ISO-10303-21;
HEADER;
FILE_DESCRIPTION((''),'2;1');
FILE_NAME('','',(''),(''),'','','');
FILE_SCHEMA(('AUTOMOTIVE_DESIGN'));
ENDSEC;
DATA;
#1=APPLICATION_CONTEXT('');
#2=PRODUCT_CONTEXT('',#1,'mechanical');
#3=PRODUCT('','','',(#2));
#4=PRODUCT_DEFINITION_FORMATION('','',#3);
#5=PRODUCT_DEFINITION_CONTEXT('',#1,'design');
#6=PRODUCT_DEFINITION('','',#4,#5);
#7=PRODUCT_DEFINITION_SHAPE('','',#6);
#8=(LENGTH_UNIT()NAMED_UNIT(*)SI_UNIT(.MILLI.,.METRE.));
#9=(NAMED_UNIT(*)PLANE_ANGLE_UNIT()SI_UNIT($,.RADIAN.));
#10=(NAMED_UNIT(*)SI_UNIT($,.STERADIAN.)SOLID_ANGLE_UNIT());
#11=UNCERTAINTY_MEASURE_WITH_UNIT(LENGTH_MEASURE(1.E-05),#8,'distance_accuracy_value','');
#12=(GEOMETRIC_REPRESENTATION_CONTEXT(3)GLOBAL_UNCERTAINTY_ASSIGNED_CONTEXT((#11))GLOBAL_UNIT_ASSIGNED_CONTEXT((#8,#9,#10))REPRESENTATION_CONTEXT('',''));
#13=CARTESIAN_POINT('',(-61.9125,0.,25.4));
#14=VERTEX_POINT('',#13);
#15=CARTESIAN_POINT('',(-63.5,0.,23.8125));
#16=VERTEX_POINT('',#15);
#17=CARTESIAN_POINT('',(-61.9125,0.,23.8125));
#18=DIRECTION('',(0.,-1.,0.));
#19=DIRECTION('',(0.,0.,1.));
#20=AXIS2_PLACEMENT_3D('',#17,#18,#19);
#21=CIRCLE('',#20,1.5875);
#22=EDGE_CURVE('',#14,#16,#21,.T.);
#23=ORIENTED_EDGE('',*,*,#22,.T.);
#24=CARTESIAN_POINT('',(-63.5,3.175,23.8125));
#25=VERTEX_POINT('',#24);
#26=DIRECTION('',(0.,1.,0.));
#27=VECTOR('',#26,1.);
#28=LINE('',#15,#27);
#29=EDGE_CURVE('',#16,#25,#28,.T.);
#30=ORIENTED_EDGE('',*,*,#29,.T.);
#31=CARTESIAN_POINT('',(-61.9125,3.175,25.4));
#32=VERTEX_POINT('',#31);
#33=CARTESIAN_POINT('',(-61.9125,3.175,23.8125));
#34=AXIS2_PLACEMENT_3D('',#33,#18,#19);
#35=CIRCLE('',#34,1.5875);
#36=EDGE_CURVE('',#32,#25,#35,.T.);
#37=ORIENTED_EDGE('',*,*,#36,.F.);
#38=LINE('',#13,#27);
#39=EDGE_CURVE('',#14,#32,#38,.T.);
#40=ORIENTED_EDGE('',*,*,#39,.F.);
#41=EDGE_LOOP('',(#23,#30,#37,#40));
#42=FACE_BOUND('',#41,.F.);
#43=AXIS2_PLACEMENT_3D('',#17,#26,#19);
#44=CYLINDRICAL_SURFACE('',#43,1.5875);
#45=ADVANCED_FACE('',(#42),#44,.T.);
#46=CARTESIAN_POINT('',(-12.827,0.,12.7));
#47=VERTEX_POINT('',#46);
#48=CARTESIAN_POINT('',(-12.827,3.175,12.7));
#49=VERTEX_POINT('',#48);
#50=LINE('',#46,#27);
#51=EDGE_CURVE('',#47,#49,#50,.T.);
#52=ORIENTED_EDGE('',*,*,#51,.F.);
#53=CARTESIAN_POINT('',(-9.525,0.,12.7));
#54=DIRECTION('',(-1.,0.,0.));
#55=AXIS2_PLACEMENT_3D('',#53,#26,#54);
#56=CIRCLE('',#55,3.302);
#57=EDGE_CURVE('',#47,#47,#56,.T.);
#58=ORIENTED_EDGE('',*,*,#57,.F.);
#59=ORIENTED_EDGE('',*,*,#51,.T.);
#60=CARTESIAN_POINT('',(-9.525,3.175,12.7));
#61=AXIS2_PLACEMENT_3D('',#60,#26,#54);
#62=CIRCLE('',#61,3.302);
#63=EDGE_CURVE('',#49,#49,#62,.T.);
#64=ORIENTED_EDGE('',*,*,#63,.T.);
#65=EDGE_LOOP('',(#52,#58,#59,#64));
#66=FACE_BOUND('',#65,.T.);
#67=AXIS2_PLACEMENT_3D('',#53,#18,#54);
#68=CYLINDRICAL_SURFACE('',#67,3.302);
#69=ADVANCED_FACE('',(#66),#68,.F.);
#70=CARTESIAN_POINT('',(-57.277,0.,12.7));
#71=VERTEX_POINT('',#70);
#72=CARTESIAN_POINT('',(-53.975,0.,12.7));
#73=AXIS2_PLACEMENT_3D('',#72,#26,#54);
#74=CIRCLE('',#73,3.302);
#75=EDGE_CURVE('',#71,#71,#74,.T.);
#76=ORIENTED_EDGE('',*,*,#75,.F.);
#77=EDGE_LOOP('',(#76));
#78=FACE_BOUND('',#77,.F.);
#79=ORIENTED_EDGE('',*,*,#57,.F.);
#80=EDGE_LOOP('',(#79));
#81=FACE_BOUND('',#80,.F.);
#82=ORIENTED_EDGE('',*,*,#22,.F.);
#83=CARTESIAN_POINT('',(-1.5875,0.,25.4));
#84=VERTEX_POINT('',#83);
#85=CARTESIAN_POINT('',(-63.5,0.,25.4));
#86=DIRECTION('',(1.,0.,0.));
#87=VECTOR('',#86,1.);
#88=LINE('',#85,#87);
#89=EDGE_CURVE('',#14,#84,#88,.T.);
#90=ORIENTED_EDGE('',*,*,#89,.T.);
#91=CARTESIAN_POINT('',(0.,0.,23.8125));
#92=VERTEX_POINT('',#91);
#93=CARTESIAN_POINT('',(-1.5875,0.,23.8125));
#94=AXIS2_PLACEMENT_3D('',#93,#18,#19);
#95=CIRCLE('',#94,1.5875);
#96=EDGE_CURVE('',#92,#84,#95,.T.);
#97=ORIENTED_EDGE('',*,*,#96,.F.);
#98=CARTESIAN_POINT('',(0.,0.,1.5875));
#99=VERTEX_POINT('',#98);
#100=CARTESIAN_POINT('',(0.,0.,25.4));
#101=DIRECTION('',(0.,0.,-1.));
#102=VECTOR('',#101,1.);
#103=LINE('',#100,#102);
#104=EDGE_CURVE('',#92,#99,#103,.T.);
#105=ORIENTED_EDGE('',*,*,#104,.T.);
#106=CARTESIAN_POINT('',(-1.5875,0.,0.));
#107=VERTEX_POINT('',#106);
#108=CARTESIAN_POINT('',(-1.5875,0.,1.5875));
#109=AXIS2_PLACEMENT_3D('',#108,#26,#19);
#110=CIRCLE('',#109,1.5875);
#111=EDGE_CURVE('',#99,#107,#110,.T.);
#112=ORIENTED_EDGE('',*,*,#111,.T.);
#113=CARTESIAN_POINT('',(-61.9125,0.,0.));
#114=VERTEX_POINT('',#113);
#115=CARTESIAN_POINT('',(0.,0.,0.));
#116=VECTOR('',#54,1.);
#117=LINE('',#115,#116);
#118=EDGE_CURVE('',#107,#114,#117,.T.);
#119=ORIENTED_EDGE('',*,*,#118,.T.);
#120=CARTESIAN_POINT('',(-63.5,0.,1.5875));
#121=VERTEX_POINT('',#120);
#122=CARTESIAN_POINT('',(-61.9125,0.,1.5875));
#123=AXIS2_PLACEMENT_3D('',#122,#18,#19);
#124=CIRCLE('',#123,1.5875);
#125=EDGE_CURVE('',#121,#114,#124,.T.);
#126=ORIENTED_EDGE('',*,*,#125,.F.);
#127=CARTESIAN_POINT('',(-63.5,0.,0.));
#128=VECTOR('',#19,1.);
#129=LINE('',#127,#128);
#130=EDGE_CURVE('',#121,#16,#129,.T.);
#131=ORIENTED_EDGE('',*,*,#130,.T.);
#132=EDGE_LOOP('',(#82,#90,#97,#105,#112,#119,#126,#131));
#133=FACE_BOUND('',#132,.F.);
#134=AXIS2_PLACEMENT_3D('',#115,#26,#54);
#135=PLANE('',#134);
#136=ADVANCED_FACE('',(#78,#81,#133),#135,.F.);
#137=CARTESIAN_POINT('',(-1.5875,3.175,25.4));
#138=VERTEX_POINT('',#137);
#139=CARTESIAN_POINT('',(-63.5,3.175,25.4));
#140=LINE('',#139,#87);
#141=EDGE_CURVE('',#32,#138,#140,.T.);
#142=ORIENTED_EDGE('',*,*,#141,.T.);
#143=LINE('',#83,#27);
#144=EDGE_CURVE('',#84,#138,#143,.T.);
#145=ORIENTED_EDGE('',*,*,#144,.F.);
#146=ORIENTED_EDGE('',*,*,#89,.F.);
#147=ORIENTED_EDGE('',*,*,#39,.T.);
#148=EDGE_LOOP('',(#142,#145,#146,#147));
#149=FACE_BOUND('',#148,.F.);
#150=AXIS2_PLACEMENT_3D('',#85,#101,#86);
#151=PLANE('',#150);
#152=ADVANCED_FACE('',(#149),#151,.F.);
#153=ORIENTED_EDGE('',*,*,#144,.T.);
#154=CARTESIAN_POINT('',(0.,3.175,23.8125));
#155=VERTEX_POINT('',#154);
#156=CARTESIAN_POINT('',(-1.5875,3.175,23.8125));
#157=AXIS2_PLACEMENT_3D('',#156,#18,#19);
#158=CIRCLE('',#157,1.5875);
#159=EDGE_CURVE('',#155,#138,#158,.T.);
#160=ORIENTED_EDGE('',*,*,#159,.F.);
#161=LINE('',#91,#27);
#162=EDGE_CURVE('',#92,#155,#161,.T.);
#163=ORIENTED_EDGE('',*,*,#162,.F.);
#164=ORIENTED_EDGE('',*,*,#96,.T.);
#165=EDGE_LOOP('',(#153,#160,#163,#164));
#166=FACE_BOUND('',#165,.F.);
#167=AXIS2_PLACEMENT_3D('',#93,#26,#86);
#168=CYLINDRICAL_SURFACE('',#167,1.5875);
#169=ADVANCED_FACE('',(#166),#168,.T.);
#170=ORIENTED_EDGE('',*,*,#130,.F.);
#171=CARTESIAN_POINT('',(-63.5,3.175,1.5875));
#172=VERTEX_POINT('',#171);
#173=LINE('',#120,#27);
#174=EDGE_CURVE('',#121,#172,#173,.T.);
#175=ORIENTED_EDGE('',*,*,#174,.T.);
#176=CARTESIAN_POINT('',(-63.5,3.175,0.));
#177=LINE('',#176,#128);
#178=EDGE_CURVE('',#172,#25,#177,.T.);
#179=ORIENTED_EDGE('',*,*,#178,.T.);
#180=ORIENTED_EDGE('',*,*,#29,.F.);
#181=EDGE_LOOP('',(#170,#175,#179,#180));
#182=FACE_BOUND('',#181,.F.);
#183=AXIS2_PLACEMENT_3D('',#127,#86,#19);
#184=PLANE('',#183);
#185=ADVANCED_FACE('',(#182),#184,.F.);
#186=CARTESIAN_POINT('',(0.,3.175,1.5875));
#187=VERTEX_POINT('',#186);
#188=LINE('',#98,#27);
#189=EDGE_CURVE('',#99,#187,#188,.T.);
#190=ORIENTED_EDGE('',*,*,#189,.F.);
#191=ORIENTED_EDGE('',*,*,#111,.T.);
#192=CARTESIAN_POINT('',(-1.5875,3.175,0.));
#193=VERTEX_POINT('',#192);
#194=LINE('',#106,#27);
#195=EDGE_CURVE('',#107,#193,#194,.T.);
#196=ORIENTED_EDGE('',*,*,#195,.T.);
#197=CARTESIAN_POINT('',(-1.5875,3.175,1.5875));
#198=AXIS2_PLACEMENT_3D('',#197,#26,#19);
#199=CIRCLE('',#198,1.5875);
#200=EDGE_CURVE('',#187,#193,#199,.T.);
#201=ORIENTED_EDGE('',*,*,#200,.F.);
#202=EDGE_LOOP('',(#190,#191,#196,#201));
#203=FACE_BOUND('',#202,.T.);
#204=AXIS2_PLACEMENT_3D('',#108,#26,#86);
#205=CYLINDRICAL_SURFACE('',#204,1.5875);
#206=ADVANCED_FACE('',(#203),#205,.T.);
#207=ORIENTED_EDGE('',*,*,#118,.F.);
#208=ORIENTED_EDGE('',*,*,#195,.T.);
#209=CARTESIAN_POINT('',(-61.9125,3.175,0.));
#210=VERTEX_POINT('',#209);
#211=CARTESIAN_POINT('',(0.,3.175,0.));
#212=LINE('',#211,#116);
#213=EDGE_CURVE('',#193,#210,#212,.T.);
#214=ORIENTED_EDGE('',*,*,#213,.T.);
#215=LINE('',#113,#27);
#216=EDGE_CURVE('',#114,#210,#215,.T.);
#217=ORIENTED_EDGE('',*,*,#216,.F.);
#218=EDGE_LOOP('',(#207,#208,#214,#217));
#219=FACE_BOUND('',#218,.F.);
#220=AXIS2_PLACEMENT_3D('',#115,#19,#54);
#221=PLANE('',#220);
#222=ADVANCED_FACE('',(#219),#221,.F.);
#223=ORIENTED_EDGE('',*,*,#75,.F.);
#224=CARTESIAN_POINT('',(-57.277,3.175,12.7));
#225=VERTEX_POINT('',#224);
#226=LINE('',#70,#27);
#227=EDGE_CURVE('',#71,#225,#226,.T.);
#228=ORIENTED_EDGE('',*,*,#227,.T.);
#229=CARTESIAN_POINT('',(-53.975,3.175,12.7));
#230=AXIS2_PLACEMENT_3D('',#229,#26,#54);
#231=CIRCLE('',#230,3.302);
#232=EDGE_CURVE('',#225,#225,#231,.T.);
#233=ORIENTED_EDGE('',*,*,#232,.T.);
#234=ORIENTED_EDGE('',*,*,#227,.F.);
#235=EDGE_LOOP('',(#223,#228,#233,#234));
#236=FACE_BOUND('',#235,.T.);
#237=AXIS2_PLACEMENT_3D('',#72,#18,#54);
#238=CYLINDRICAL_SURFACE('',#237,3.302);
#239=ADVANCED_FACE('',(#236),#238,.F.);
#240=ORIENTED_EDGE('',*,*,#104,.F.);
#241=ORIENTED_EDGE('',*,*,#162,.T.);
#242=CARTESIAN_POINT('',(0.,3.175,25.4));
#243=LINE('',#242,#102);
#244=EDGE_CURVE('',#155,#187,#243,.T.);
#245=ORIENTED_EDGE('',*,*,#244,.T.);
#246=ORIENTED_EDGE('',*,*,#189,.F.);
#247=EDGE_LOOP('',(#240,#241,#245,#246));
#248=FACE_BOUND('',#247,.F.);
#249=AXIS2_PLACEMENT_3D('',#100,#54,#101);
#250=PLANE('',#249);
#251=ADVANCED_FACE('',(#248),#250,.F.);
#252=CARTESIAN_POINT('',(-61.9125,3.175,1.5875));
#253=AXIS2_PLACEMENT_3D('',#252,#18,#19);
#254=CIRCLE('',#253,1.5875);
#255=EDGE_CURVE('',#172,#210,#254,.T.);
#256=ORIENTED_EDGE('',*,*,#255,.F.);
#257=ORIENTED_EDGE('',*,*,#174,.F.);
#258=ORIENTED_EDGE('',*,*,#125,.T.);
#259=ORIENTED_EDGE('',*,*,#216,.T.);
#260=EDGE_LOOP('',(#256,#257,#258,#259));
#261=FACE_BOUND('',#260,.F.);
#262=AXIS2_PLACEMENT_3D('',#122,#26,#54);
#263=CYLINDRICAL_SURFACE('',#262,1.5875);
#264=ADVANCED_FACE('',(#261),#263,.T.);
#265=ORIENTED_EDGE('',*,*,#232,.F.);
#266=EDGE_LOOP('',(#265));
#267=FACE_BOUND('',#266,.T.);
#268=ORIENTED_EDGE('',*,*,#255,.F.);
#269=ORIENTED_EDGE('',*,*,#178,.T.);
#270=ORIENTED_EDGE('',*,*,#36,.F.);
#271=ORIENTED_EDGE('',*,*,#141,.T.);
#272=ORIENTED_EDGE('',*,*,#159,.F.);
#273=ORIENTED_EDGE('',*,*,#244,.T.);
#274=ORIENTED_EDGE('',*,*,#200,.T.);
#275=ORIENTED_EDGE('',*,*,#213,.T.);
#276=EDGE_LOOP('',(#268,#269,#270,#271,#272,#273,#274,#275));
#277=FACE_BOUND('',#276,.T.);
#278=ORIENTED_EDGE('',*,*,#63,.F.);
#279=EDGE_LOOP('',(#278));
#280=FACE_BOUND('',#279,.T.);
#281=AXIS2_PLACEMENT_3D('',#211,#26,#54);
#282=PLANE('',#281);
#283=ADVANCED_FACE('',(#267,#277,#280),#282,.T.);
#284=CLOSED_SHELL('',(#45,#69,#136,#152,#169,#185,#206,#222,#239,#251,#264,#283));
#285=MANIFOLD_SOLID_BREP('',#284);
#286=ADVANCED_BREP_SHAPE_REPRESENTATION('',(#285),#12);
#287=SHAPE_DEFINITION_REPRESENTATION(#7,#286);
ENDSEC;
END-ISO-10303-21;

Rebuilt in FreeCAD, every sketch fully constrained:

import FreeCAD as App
import Part
import Sketcher
Q = App.Units.Quantity


def edges_at(feature, points):
    """Names of the edges that pass closest to the given points."""
    edges = feature.Shape.Edges
    near = lambda p: min(range(len(edges)), key=lambda i: edges[i].distToShape(Part.Vertex(*p))[0])
    return sorted({f"Edge{near(p) + 1}" for p in points})


def add_polygon(sketch, points):
    """Adds a closed chain of lines whose ends are joined by coincident constraints."""
    first, n = sketch.GeometryCount, len(points)
    for a, b in zip(points, points[1:] + points[:1]):
        sketch.addGeometry(Part.LineSegment(App.Vector(*a, 0), App.Vector(*b, 0)), False)
    for i in range(n):
        sketch.addConstraint(Sketcher.Constraint("Coincident", first + i, 2, first + (i + 1) % n, 1))

doc = App.newDocument("Part")
body = doc.addObject("PartDesign::Body", "Body")

sketch1 = body.newObject("Sketcher::SketchObject", "Sketch")
sketch1.AttachmentSupport = (doc.getObject("XZ_Plane"), [""])
sketch1.MapMode = "FlatFace"
add_polygon(sketch1, [(0, 25.4), (0, 0), (-63.5, 0), (-63.5, 25.4)])
sketch1.addGeometry(Part.Circle(App.Vector(-9.5, 12.7, 0), App.Vector(0, 0, 1), 3.3), False)
sketch1.addGeometry(Part.Circle(App.Vector(-54, 12.7, 0), App.Vector(0, 0, 1), 3.3), False)
sketch1.addConstraint(Sketcher.Constraint("Vertical", 0))
sketch1.addConstraint(Sketcher.Constraint("Horizontal", 1))
sketch1.addConstraint(Sketcher.Constraint("Vertical", 2))
sketch1.addConstraint(Sketcher.Constraint("Horizontal", 3))
sketch1.addConstraint(Sketcher.Constraint("Coincident", 0, 2, -1, 1))
sketch1.addConstraint(Sketcher.Constraint("Equal", 4, 5))
sketch1.addConstraint(Sketcher.Constraint("Horizontal", 4, 3, 5, 3))
sketch1.addConstraint(Sketcher.Constraint("Diameter", 4, Q("0.26 in")))
sketch1.addConstraint(Sketcher.Constraint("DistanceY", 0, 2, 0, 1, Q("1 in")))
sketch1.addConstraint(Sketcher.Constraint("DistanceX", 1, 2, 1, 1, Q("2.5 in")))
sketch1.addConstraint(Sketcher.Constraint("DistanceX", 5, 3, 4, 3, Q("1.75 in")))
sketch1.addConstraint(Sketcher.Constraint("DistanceY", -1, 1, 4, 3, Q("0.5 in")))
sketch1.addConstraint(Sketcher.Constraint("DistanceX", 4, 3, -1, 1, Q("0.375 in")))
pad1 = body.newObject("PartDesign::Pad", "Pad")
pad1.Profile = sketch1
pad1.Length = Q("0.125 in")
pad1.Reversed = True
doc.recompute()

fillet = body.newObject("PartDesign::Fillet", "Fillet")
fillet.Base = (pad1, edges_at(pad1, [
    (0, 1.587, 25.4),
    (0, 1.587, 0),
    (-63.5, 1.587, 0),
    (-63.5, 1.587, 25.4),
]))
fillet.Radius = Q("0.0625 in")

doc.recompute()
